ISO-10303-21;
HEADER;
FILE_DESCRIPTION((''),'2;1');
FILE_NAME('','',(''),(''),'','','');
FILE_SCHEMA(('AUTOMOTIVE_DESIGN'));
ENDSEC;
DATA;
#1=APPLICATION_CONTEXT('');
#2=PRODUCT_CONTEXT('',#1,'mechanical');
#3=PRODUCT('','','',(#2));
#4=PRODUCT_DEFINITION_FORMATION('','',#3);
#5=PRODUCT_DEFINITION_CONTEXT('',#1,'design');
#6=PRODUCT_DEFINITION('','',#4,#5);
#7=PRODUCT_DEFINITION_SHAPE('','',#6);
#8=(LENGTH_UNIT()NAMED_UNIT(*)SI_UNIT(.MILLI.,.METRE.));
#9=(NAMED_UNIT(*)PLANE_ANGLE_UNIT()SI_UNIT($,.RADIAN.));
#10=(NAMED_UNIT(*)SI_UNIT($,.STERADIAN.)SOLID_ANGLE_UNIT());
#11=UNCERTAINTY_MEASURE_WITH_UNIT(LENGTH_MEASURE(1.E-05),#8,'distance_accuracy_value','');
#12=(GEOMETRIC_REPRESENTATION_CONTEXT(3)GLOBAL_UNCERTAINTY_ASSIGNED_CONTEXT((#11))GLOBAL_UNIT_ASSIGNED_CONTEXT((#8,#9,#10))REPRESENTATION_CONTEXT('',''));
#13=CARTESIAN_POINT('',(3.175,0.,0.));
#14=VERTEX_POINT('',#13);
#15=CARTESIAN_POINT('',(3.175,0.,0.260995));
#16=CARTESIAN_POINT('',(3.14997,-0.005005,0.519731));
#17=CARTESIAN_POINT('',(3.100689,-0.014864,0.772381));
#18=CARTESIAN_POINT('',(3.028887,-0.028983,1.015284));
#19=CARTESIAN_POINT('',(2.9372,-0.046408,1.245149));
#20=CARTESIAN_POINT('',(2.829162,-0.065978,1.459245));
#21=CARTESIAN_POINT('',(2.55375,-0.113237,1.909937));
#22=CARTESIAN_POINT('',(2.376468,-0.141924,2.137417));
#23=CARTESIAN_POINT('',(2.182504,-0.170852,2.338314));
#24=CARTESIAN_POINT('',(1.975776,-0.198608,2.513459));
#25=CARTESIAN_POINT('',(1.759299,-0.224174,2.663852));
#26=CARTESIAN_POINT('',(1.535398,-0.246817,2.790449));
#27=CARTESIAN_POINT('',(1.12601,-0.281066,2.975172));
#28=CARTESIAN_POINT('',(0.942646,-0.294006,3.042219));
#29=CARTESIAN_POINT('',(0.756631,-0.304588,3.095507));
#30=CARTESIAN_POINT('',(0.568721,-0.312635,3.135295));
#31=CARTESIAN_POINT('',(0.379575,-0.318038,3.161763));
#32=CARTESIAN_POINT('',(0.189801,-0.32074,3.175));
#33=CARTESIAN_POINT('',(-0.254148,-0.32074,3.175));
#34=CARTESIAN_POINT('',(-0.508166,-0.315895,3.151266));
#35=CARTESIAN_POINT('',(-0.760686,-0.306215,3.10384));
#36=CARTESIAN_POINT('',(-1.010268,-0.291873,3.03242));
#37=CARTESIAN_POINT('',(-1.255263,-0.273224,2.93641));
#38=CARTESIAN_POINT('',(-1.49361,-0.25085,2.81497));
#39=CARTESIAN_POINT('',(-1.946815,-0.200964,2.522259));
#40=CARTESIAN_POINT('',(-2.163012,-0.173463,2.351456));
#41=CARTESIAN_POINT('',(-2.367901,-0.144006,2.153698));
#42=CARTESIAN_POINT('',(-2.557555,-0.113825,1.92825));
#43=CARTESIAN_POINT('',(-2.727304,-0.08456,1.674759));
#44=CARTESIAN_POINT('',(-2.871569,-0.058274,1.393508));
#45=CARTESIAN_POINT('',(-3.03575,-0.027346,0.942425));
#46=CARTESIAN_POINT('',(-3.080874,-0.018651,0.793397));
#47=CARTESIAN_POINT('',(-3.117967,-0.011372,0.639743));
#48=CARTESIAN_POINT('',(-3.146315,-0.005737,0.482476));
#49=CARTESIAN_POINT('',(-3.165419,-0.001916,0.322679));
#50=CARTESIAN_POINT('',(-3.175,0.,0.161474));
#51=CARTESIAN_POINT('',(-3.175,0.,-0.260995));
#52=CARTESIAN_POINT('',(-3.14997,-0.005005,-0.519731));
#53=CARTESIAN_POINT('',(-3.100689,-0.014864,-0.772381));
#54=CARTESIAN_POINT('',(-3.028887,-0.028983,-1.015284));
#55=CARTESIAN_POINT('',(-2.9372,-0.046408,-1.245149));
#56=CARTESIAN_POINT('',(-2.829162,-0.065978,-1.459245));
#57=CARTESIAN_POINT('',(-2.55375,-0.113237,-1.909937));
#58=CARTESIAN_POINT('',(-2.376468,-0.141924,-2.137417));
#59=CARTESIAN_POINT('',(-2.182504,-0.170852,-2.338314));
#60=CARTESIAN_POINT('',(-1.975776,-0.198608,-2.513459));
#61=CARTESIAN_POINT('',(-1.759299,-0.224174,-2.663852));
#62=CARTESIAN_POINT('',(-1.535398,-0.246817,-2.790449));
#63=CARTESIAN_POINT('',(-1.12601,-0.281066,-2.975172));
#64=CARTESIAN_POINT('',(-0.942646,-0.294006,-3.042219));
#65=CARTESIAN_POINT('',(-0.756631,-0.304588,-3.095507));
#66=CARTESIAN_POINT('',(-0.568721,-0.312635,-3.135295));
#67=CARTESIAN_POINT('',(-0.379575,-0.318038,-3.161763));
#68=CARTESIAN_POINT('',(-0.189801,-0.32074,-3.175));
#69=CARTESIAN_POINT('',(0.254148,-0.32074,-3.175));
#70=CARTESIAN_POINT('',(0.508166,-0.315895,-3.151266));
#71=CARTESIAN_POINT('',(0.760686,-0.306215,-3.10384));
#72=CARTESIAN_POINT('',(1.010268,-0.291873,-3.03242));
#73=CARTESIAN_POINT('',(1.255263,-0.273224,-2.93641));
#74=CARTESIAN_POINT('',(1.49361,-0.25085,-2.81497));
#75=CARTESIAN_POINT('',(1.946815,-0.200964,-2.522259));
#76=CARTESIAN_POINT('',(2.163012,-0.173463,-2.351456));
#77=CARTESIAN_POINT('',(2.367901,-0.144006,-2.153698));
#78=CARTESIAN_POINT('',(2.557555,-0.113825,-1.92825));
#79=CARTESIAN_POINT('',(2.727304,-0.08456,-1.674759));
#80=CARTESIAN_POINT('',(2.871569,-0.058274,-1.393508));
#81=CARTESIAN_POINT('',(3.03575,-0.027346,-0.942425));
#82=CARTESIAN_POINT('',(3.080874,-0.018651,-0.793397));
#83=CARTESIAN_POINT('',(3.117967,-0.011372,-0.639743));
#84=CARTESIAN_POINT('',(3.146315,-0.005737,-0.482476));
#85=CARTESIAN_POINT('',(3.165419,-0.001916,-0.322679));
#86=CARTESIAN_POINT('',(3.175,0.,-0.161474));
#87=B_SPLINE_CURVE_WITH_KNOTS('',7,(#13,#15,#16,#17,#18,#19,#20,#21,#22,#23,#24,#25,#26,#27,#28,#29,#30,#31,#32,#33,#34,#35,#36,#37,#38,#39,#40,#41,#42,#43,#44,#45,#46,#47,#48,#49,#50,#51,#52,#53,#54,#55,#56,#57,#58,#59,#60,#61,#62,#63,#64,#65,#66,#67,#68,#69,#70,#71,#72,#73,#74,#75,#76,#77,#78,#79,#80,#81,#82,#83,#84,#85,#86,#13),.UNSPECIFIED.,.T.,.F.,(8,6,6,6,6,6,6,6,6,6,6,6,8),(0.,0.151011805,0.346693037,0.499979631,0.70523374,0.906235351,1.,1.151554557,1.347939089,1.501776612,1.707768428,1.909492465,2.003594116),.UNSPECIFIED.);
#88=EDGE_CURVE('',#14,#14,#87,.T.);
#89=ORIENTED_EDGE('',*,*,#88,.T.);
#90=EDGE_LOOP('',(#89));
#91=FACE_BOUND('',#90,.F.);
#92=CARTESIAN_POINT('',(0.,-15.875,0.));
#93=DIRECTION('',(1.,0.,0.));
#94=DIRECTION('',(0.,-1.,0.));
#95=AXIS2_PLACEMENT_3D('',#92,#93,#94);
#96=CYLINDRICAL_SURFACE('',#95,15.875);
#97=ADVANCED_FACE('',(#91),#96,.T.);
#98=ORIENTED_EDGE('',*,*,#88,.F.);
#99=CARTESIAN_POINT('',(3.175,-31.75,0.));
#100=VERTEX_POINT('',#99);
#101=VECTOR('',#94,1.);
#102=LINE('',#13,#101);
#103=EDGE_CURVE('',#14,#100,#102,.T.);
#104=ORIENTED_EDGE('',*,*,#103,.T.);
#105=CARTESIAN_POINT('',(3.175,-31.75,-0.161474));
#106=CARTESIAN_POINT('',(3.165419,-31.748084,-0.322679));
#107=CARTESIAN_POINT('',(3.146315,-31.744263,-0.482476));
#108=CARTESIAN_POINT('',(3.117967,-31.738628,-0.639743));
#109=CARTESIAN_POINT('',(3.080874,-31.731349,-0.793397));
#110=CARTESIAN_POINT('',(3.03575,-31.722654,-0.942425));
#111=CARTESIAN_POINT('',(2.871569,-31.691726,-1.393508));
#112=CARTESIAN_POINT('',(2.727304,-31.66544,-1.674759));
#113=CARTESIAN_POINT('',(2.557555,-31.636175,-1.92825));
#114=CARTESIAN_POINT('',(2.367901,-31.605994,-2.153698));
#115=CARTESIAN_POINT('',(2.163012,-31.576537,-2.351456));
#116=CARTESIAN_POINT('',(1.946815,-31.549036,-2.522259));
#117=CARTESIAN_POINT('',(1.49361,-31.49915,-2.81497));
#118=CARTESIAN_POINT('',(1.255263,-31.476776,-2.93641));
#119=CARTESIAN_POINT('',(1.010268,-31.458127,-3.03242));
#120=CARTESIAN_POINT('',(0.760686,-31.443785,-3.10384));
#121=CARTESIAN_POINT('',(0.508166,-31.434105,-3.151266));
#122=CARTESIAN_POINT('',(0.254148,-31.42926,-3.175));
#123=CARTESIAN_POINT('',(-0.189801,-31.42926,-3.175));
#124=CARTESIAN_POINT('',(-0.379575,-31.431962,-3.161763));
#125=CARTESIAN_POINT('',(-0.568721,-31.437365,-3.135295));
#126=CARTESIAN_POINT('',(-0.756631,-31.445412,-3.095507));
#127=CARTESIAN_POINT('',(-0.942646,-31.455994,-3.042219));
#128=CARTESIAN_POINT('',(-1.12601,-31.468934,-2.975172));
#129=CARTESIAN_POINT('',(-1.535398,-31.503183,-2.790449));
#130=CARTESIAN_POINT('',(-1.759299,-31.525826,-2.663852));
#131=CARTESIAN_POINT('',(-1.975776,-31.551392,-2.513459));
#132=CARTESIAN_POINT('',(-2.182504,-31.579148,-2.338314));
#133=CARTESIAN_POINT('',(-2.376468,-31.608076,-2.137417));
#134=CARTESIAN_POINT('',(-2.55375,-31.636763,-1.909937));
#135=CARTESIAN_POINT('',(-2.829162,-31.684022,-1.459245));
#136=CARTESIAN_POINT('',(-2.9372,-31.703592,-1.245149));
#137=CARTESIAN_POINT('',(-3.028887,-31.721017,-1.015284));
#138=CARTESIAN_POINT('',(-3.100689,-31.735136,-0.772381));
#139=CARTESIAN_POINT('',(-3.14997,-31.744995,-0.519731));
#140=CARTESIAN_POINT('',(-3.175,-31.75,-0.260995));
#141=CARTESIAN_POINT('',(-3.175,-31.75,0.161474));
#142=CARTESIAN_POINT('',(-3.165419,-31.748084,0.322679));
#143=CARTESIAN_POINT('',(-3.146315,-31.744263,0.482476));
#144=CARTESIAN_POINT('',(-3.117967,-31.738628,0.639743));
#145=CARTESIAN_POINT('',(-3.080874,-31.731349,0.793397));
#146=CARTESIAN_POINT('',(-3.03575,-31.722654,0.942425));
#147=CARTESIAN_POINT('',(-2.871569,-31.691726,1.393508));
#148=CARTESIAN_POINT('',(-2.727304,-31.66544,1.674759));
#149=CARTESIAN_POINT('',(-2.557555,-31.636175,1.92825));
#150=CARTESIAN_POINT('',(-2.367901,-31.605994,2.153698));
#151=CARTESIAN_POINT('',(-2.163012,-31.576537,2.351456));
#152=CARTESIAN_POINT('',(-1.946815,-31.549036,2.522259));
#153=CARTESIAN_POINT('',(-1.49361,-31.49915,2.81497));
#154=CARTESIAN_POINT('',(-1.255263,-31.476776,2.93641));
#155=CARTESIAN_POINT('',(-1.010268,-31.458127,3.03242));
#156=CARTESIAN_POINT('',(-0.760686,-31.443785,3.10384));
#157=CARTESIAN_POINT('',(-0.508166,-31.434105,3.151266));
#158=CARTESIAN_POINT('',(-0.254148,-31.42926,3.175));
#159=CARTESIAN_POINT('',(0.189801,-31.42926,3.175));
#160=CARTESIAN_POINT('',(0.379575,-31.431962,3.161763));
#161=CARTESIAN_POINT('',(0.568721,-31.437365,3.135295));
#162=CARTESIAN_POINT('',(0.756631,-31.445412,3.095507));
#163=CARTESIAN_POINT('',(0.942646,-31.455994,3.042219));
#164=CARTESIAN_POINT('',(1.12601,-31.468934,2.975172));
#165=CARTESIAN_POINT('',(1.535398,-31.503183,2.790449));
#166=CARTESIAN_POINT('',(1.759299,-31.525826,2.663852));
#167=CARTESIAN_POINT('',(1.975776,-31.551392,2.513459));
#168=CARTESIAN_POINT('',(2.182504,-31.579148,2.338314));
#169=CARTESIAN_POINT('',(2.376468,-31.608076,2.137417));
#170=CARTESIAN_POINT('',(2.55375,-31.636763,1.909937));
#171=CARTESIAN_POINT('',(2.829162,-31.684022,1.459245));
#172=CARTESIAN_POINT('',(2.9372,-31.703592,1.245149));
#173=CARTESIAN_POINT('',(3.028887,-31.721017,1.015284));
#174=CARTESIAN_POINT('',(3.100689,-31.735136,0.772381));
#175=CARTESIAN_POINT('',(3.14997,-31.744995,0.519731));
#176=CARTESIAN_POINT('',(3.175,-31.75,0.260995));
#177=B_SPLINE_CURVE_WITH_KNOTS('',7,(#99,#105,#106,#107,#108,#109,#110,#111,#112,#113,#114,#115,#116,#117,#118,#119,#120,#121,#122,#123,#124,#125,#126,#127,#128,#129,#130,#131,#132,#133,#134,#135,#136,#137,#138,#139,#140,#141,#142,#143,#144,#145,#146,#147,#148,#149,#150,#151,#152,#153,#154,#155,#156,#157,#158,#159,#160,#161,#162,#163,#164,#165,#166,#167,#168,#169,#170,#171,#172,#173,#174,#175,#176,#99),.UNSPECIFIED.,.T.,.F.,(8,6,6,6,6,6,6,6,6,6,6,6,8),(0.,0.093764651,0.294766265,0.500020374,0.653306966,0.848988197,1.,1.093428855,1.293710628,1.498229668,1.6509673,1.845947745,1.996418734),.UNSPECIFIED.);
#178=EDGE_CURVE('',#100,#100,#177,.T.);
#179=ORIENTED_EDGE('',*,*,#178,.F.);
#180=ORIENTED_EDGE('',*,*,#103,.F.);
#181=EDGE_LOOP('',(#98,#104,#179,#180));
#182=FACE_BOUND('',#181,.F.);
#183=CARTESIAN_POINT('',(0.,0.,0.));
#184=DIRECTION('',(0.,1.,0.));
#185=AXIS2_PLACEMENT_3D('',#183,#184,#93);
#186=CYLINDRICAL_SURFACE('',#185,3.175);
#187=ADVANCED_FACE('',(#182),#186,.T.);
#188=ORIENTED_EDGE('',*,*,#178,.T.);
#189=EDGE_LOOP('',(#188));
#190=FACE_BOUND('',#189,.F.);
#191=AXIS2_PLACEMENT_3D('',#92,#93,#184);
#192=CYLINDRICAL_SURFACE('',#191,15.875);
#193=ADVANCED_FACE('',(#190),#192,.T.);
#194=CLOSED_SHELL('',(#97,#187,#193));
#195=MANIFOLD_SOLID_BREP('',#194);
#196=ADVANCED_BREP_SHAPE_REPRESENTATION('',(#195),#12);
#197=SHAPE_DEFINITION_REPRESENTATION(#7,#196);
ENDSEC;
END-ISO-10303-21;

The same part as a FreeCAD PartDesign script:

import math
import FreeCAD as App
import Part
import Sketcher
Q = App.Units.Quantity

doc = App.newDocument("Part")
body = doc.addObject("PartDesign::Body", "Body")

# Sketch on XZ plane
sketch1 = body.newObject("Sketcher::SketchObject", "Sketch")
sketch1.AttachmentSupport = (doc.getObject("XZ_Plane"), [""])
sketch1.MapMode = "FlatFace"
sketch1.addGeometry(Part.Circle(App.Vector(0, 0, 0), App.Vector(0, 0, 1), 3.2), False)
sketch1.addConstraint([
    Sketcher.Constraint("Coincident", 0, 3, -1, 1),
    Sketcher.Constraint("Diameter", 0, Q("0.25 in")),
])
pad1 = body.newObject("PartDesign::Pad", "Pad")
pad1.Profile = sketch1
pad1.Length = Q("1.25 in")

# Sketch on YZ plane
sketch2 = body.newObject("Sketcher::SketchObject", "Sketch001")
sketch2.AttachmentSupport = (doc.getObject("YZ_Plane"), [""])
sketch2.MapMode = "FlatFace"
sketch2.addGeometry([
    Part.ArcOfCircle(Part.Circle(App.Vector(-16, 0, 0), App.Vector(0, 0, 1), 16), math.radians(0), math.radians(180)),  # 0
    Part.LineSegment(App.Vector(0, 0, 0), App.Vector(0, 17, 0)),  # 1
    Part.LineSegment(App.Vector(0, 17, 0), App.Vector(-32, 17, 0)),  # 2
    Part.LineSegment(App.Vector(-32, 17, 0), App.Vector(-32, 0, 0)),  # 3
    Part.LineSegment(App.Vector(0, -17, 0), App.Vector(0, 0, 0)),  # 4
    Part.ArcOfCircle(Part.Circle(App.Vector(-16, 0, 0), App.Vector(0, 0, 1), 16), math.radians(180), math.radians(360)),  # 5
    Part.LineSegment(App.Vector(-32, 0, 0), App.Vector(-32, -17, 0)),  # 6
    Part.LineSegment(App.Vector(-32, -17, 0), App.Vector(0, -17, 0)),  # 7
], False)
sketch2.addConstraint([
    Sketcher.Constraint("Tangent", 0, 1, 1, 1),
    Sketcher.Constraint("Coincident", 1, 2, 2, 1),
    Sketcher.Constraint("Coincident", 2, 2, 3, 1),
    Sketcher.Constraint("Tangent", 3, 2, 0, 2),
    Sketcher.Constraint("Tangent", 4, 2, 5, 2),
    Sketcher.Constraint("Tangent", 5, 1, 6, 1),
    Sketcher.Constraint("Coincident", 6, 2, 7, 1),
    Sketcher.Constraint("Coincident", 7, 2, 4, 1),
    Sketcher.Constraint("Vertical", 1),
    Sketcher.Constraint("Horizontal", 2),
    Sketcher.Constraint("Vertical", 3),
    Sketcher.Constraint("Vertical", 4),
    Sketcher.Constraint("Vertical", 6),
    Sketcher.Constraint("Horizontal", 7),
    Sketcher.Constraint("Coincident", 0, 1, -1, 1),
    Sketcher.Constraint("Coincident", 4, 2, -1, 1),
    Sketcher.Constraint("Equal", 0, 5),
    Sketcher.Constraint("Equal", 3, 4),
    Sketcher.Constraint("Radius", 0, Q("0.625 in")),
    Sketcher.Constraint("DistanceY", 1, 1, 1, 2, Q("17.315913 mm")),
])
pocket1 = body.newObject("PartDesign::Pocket", "Pocket")
pocket1.Profile = sketch2
pocket1.Length = Q("1 in")
pocket1.Midplane = True

doc.recompute()
